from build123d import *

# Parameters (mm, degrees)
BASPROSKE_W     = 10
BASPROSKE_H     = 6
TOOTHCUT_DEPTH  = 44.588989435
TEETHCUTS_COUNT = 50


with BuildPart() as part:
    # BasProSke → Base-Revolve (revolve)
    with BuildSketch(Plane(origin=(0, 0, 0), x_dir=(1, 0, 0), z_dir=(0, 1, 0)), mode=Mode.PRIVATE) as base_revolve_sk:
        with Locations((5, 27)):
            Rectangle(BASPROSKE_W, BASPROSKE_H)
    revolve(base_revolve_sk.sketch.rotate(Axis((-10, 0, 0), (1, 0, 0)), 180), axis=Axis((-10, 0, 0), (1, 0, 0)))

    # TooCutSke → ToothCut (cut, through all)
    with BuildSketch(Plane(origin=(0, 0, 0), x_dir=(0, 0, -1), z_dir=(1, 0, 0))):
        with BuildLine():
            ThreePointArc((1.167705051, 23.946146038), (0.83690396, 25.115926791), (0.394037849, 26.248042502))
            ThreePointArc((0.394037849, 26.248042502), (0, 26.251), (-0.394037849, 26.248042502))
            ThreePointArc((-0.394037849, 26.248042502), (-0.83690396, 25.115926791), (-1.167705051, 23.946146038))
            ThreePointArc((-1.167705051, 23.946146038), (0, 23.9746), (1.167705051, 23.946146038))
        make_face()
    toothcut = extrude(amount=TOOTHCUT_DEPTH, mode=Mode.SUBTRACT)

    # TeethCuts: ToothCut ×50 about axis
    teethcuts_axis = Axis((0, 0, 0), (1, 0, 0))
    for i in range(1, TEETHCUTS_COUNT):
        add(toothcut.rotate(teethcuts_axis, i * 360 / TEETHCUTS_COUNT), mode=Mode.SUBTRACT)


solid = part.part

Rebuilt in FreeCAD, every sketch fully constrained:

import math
import FreeCAD as App
import Part
import Sketcher
Q = App.Units.Quantity

doc = App.newDocument("Part")
params = doc.addObject("Spreadsheet::Sheet", "Params")
for row, (alias, value) in enumerate([
    ("sketch1_width", "10 mm"),
    ("sketch1_height", "6 mm"),
    ("revolution_angle", "360 deg"),
    ("sketch2_radius", "12.5 mm"),
], start=1):
    params.set(f"A{row}", alias)
    params.set(f"B{row}", "=" + value)
    params.setAlias(f"B{row}", alias)

body = doc.addObject("PartDesign::Body", "Body")

# Sketch on XZ plane
sketch1 = doc.addObject("Sketcher::SketchObject", "Sketch")
body.addObject(sketch1)
sketch1.AttachmentSupport = (doc.XZ_Plane, [""])
sketch1.MapMode = "FlatFace"
sketch1.addGeometry([
    Part.LineSegment(App.Vector(0, -30, 0), App.Vector(0, -24, 0)),
    Part.LineSegment(App.Vector(0, -24, 0), App.Vector(10, -24, 0)),
    Part.LineSegment(App.Vector(10, -24, 0), App.Vector(10, -30, 0)),
    Part.LineSegment(App.Vector(10, -30, 0), App.Vector(0, -30, 0)),
], False)
sketch1.addConstraint([
    Sketcher.Constraint("Coincident", 0, 2, 1, 1),
    Sketcher.Constraint("Coincident", 1, 2, 2, 1),
    Sketcher.Constraint("Coincident", 2, 2, 3, 1),
    Sketcher.Constraint("Coincident", 3, 2, 0, 1),
    Sketcher.Constraint("Vertical", 0),
    Sketcher.Constraint("Horizontal", 1),
    Sketcher.Constraint("Vertical", 2),
    Sketcher.Constraint("Horizontal", 3),
    Sketcher.Constraint("PointOnObject", 0, 2, -2),
    Sketcher.Constraint("DistanceX", 1, 1, 1, 2, Q("10 mm")),
    Sketcher.Constraint("DistanceY", 0, 1, 0, 2, Q("6 mm")),
    Sketcher.Constraint("DistanceY", 0, 2, -1, 1, Q("24 mm")),
])
sketch1.setExpression("Constraints[9]", "Params.sketch1_width")
sketch1.setExpression("Constraints[10]", "Params.sketch1_height")
revolution = doc.addObject("PartDesign::Revolution", "Revolution")
body.addObject(revolution)
revolution.Profile = sketch1
revolution.ReferenceAxis = (sketch1, ["H_Axis"])
revolution.setExpression("Angle", "Params.revolution_angle")

# Sketch on YZ plane
sketch2 = doc.addObject("Sketcher::SketchObject", "Sketch001")
body.addObject(sketch2)
sketch2.AttachmentSupport = (doc.YZ_Plane, [""])
sketch2.MapMode = "FlatFace"
sketch2.addGeometry([
    Part.ArcOfCircle(Part.Circle(App.Vector(21.1, 11, 0), App.Vector(0, 0, 1), 12.5), math.radians(-77), math.radians(-65.85)),
    Part.ArcOfCircle(Part.Circle(App.Vector(0, 0, 0), App.Vector(0, 0, 1), 26.3), math.radians(-0.86), math.radians(0.86)),
    Part.ArcOfCircle(Part.Circle(App.Vector(21.1, -11, 0), App.Vector(0, 0, 1), 12.5), math.radians(65.85), math.radians(77)),
    Part.ArcOfCircle(Part.Circle(App.Vector(0, 0, 0), App.Vector(0, 0, 1), 24), math.radians(-2.79), math.radians(2.79)),
], False)
sketch2.addConstraint([
    Sketcher.Constraint("Coincident", 0, 2, 1, 1),
    Sketcher.Constraint("Coincident", 1, 2, 2, 1),
    Sketcher.Constraint("Coincident", 2, 2, 3, 2),
    Sketcher.Constraint("Coincident", 3, 1, 0, 1),
    Sketcher.Constraint("Coincident", 1, 3, -1, 1),
    Sketcher.Constraint("Coincident", 3, 3, -1, 1),
    Sketcher.Constraint("Equal", 0, 2),
    Sketcher.Constraint("Symmetric", 0, 3, 2, 3, -1),
    Sketcher.Constraint("Radius", 0, Q("12.5 mm")),
    Sketcher.Constraint("Radius", 3, Q("23.9746 mm")),
    Sketcher.Constraint("Radius", 1, Q("26.251002 mm")),
    Sketcher.Constraint("DistanceX", -1, 1, 0, 3, Q("21.13359 mm")),
    Sketcher.Constraint("DistanceY", 2, 3, 0, 2, Q("10.617729 mm")),
])
sketch2.setExpression("Constraints[8]", "Params.sketch2_radius")
pocket1 = doc.addObject("PartDesign::Pocket", "Pocket")
body.addObject(pocket1)
pocket1.Profile = sketch2
pocket1.Type = "ThroughAll"
pocket1.Reversed = True
doc.recompute()

polarpattern = doc.addObject("PartDesign::PolarPattern", "PolarPattern")
body.addObject(polarpattern)
polarpattern.Originals = [pocket1]
polarpattern.Axis = (doc.X_Axis, [""])
polarpattern.Angle = 360
polarpattern.Occurrences = 50
body.Tip = polarpattern

doc.recompute()
